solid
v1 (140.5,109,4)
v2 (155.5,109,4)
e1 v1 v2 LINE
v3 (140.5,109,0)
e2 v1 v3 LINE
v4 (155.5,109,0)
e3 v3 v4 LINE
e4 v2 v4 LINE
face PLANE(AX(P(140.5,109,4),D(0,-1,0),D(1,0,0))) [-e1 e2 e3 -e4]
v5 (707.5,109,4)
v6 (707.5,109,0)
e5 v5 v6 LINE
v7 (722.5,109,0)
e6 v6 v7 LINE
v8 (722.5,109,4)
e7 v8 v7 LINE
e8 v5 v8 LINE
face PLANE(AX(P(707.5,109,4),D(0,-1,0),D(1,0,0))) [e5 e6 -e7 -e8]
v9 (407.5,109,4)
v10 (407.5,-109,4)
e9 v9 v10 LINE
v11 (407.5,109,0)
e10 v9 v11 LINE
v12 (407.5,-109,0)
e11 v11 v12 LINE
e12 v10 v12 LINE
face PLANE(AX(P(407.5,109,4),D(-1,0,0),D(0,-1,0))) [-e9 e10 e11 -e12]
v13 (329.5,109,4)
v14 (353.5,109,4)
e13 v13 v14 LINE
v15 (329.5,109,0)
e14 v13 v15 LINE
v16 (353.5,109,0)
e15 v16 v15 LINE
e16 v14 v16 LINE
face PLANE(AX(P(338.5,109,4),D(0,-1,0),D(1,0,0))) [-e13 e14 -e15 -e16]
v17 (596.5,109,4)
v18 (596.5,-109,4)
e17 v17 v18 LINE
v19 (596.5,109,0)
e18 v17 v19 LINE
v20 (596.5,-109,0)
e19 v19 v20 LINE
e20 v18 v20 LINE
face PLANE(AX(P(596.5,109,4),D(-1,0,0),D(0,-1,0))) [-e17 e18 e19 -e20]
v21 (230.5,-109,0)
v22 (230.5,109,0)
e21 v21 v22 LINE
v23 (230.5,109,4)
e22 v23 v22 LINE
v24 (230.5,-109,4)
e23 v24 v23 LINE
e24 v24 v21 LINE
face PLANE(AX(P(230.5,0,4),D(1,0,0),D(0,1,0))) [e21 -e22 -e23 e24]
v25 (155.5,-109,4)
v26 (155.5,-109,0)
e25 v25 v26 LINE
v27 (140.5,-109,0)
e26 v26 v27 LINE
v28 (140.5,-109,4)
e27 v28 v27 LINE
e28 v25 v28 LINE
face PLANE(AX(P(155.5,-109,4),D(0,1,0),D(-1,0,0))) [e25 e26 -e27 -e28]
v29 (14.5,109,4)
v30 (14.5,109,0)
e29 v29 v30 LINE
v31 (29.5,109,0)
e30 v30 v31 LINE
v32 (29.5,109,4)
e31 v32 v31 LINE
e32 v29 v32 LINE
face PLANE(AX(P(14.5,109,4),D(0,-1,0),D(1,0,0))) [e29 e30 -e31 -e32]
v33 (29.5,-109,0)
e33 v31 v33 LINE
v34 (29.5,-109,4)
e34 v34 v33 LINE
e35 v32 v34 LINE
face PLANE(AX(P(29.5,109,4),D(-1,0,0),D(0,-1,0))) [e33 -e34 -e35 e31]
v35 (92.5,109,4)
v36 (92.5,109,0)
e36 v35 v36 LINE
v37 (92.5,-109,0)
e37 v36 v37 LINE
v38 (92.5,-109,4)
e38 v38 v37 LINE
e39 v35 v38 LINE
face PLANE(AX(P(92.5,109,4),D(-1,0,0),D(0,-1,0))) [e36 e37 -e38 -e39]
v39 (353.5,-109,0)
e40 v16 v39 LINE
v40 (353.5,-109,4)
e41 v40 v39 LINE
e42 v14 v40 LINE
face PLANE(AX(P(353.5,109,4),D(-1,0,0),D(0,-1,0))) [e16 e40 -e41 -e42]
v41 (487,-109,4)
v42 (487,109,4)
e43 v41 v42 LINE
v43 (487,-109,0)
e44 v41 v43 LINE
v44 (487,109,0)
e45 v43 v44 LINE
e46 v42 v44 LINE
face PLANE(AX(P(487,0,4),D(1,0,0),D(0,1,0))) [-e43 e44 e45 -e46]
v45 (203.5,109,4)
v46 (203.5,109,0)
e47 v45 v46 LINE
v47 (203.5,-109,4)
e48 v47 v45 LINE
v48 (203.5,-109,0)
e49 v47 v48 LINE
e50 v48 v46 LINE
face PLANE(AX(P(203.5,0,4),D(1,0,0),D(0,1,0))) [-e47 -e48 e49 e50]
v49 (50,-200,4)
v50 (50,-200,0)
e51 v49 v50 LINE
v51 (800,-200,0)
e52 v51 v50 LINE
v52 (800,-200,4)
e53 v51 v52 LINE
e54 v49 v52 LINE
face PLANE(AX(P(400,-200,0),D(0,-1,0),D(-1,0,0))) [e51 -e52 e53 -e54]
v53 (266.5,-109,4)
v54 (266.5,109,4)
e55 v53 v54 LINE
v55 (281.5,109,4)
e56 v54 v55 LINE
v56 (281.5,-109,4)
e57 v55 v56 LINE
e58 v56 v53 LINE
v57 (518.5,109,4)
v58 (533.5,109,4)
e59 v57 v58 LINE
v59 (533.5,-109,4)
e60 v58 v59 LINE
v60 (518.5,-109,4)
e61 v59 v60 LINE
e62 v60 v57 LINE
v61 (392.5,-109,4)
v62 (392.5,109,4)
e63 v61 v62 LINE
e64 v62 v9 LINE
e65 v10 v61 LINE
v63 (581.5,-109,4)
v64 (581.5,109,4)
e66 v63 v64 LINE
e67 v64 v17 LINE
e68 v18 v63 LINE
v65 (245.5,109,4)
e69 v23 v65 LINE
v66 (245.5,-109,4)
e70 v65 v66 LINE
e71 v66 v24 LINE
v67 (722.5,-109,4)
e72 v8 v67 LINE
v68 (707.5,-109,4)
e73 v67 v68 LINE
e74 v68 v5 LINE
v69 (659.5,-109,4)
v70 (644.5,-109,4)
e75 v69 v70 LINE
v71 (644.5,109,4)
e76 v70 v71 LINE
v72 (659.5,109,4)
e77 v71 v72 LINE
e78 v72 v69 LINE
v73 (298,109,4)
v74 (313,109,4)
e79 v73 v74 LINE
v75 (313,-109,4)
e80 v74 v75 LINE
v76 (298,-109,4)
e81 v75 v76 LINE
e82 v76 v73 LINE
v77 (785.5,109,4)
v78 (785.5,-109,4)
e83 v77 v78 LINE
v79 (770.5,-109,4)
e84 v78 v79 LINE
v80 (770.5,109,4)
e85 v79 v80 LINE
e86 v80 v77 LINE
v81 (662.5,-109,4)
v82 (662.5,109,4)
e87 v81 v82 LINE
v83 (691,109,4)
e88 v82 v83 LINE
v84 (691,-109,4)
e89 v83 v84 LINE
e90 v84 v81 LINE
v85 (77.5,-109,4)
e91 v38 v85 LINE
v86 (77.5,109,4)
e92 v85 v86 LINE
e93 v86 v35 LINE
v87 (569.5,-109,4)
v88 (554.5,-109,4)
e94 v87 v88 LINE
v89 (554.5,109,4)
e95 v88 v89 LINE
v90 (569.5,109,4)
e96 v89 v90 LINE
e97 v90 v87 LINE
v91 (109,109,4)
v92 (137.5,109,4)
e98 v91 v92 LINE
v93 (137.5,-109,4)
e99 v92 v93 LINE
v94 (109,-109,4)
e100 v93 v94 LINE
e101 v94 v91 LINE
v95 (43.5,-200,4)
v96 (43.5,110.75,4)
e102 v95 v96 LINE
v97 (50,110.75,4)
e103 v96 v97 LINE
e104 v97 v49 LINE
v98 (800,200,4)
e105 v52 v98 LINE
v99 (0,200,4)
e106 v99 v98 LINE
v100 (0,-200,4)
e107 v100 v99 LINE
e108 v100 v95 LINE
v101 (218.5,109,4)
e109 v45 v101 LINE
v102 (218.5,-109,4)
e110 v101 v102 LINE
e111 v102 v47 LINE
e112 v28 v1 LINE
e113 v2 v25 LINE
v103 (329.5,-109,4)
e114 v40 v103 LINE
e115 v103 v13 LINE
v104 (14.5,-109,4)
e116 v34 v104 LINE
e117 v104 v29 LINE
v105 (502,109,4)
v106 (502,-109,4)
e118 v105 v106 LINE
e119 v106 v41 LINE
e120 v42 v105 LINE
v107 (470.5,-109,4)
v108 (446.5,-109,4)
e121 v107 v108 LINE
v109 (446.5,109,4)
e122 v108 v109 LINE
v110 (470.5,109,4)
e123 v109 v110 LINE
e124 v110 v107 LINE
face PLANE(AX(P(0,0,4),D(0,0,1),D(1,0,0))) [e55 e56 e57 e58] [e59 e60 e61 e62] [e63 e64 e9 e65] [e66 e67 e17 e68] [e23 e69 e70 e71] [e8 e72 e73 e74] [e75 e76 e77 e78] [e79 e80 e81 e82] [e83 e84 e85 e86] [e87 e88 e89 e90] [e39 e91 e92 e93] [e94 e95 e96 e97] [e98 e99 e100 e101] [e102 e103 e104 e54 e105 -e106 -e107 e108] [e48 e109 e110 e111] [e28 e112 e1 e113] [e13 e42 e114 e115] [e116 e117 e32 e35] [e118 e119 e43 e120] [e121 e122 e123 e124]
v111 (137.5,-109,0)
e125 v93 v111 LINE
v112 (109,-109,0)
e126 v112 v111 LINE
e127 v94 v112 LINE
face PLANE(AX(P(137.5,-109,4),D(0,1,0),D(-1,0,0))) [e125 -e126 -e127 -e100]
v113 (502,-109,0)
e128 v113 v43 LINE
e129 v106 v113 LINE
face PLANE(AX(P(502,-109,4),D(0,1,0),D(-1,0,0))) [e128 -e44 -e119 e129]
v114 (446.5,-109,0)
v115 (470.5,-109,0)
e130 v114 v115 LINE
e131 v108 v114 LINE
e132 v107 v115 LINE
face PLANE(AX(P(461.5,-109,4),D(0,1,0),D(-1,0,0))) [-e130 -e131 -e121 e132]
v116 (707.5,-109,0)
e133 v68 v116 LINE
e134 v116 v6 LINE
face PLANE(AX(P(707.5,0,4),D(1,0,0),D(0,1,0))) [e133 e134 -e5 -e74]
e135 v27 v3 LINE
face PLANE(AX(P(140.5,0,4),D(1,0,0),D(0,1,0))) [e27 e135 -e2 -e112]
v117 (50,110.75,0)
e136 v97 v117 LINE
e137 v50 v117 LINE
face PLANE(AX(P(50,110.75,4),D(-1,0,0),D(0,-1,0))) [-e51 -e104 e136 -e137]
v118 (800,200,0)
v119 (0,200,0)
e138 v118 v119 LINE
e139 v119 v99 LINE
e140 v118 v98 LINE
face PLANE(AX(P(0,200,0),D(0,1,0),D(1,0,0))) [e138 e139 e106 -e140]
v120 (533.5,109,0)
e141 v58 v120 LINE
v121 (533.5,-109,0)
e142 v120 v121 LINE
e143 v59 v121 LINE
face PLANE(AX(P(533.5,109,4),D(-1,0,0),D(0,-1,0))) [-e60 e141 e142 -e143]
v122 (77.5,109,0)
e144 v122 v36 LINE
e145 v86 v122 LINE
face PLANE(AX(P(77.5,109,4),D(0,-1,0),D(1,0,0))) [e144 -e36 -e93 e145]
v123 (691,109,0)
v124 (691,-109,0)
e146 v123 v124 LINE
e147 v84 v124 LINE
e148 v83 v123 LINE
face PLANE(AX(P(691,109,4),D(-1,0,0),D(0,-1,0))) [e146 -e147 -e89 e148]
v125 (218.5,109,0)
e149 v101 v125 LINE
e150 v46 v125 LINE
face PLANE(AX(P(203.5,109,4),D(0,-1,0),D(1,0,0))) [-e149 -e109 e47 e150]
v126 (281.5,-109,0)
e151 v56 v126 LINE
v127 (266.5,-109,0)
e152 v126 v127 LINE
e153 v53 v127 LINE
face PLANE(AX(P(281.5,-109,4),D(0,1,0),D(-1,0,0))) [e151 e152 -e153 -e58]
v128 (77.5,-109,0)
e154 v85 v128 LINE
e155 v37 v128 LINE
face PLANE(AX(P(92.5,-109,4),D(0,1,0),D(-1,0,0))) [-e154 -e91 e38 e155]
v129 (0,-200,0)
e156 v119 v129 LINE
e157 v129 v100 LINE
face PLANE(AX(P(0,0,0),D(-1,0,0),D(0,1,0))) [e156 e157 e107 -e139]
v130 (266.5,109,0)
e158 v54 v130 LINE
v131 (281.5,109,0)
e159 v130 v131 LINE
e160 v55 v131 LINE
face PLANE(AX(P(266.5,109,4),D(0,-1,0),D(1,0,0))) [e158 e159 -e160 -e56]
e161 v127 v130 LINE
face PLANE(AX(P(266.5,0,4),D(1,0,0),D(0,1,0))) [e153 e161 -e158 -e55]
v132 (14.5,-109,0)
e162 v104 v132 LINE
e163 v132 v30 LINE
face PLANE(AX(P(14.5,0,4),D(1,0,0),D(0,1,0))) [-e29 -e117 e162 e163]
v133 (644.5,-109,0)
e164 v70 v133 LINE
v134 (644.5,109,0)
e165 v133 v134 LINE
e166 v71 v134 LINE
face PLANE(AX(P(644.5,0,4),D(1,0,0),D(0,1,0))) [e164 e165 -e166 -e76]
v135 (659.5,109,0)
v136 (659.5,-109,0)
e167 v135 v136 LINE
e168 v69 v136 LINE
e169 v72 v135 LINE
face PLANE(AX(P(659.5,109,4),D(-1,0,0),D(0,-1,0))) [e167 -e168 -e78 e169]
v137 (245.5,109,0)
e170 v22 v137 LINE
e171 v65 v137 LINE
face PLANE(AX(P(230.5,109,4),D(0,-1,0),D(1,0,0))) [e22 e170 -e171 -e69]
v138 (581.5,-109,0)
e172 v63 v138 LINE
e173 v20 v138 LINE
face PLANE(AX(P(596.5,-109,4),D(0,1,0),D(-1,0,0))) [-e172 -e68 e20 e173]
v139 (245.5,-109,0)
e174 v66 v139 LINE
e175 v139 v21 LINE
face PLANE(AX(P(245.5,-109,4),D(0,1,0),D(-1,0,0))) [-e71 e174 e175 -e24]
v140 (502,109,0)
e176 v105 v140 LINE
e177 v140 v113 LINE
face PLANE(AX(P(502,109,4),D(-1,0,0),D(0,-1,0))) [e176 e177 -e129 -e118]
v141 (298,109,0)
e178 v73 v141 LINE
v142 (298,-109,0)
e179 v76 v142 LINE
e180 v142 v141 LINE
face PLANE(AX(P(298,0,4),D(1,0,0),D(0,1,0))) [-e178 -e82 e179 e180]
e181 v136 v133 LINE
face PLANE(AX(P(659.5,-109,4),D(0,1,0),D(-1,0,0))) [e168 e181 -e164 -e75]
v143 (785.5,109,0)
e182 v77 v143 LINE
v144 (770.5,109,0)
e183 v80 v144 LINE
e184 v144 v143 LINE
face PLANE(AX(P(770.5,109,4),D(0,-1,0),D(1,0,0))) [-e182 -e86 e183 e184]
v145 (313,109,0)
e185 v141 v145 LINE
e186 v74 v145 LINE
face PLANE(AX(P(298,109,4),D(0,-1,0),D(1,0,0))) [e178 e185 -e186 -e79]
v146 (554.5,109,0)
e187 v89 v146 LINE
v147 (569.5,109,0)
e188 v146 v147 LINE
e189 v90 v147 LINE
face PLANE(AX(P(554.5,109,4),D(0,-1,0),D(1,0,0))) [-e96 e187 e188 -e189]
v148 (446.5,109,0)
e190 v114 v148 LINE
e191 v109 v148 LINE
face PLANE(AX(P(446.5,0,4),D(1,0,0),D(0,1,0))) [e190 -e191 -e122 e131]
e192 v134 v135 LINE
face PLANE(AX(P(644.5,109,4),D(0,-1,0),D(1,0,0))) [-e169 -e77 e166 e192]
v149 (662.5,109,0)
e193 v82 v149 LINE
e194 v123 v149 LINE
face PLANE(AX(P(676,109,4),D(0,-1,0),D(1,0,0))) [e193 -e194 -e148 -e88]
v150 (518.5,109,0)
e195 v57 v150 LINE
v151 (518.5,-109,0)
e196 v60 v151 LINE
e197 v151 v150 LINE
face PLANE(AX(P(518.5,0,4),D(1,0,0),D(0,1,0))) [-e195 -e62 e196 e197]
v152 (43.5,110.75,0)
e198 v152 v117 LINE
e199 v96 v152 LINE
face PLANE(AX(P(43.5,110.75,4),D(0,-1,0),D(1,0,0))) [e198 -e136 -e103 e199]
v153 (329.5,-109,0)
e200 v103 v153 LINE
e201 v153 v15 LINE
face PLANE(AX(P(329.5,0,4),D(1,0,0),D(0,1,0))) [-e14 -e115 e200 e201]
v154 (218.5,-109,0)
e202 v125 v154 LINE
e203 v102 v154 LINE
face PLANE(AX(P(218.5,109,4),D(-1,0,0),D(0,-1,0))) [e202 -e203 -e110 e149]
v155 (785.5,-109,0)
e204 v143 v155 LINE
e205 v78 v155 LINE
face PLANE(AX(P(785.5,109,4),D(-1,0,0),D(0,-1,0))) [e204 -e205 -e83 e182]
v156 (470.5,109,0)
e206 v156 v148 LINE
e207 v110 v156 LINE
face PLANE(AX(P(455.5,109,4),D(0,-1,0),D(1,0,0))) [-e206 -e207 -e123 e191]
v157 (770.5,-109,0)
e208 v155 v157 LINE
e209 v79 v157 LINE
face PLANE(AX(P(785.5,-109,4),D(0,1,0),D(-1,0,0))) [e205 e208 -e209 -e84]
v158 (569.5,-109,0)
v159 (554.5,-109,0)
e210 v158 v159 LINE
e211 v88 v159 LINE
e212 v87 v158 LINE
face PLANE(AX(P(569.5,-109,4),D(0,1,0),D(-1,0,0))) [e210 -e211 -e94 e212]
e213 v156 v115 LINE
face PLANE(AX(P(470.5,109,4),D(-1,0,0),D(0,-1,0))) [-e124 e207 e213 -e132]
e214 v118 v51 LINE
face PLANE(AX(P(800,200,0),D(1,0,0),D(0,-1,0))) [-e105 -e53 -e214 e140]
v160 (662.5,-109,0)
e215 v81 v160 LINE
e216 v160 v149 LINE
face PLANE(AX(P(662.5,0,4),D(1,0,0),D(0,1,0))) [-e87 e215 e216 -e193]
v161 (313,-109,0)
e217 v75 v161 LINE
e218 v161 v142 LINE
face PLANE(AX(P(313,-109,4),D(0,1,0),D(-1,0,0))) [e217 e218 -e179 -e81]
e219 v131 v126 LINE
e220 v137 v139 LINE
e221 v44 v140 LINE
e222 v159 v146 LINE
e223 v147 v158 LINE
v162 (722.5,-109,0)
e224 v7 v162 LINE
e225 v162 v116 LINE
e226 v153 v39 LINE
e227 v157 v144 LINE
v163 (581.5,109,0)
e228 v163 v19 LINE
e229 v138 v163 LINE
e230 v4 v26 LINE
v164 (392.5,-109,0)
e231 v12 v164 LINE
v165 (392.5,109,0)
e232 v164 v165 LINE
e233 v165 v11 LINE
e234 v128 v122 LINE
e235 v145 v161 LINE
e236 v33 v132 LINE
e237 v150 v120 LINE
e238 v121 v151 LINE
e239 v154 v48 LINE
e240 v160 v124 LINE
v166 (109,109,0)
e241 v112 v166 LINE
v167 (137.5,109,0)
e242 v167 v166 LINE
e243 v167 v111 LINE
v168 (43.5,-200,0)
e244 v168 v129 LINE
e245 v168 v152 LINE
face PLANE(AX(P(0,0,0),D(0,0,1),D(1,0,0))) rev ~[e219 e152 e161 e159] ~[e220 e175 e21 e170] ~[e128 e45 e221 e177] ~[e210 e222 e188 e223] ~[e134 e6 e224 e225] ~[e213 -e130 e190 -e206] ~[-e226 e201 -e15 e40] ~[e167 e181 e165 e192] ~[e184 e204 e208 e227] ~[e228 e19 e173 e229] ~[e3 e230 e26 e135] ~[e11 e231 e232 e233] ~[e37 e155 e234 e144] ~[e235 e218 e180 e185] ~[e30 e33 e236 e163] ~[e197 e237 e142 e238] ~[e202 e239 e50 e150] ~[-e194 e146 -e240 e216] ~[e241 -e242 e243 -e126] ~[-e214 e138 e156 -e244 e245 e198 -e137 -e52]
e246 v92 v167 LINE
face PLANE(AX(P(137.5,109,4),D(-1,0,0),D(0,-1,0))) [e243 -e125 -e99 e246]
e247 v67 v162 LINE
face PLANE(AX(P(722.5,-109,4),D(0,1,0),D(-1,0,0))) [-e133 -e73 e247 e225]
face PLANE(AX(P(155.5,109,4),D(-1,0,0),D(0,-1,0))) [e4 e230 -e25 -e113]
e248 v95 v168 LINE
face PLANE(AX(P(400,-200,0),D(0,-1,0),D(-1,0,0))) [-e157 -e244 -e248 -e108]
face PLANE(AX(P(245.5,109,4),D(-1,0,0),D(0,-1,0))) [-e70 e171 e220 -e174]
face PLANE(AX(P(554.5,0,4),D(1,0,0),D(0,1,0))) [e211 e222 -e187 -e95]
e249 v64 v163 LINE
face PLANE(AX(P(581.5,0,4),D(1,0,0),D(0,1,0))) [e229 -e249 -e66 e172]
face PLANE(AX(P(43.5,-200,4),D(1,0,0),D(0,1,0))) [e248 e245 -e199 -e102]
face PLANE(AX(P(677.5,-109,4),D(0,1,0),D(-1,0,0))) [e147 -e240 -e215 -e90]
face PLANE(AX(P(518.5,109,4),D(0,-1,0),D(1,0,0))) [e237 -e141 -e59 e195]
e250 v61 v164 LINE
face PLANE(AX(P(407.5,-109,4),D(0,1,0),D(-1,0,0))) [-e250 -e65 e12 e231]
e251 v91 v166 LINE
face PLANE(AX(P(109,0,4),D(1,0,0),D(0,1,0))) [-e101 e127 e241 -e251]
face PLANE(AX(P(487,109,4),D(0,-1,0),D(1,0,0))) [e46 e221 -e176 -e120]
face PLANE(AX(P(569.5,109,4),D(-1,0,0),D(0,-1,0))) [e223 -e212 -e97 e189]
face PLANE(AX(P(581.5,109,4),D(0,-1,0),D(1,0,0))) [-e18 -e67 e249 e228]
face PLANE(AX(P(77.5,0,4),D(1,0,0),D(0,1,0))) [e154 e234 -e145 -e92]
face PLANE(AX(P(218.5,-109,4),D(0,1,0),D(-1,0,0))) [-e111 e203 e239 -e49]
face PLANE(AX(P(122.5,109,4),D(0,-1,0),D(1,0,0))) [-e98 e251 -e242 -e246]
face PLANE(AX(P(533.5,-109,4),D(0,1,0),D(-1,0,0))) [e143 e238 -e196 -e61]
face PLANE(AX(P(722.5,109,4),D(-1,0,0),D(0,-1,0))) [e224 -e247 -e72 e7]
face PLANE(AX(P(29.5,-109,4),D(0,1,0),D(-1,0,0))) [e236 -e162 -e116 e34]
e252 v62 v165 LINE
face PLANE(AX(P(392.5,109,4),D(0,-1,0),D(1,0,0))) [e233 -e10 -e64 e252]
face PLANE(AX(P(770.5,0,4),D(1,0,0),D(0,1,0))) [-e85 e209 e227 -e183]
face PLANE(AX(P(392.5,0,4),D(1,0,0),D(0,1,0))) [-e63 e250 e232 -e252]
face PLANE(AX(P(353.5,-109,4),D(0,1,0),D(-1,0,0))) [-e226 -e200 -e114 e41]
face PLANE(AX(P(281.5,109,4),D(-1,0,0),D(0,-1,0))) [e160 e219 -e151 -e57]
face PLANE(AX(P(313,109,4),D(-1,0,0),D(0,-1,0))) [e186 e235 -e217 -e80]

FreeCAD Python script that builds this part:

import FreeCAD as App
import Part
import Sketcher
from FreeCAD import Vector
Q = App.Units.Quantity

doc = App.newDocument("Part")
body = doc.addObject("PartDesign::Body", "Body")

# Sketch on XY plane
sketch1 = doc.addObject("Sketcher::SketchObject", "Sketch")
body.addObject(sketch1)
sketch1.AttachmentSupport = (doc.XY_Plane, [""])
sketch1.MapMode = "FlatFace"
sketch1.addGeometry(Part.LineSegment(Vector(0, 200, 0), Vector(0, -200, 0)), False)
sketch1.addGeometry(Part.LineSegment(Vector(0, -200, 0), Vector(800, -200, 0)), False)
sketch1.addGeometry(Part.LineSegment(Vector(800, -200, 0), Vector(800, 200, 0)), False)
sketch1.addGeometry(Part.LineSegment(Vector(800, 200, 0), Vector(0, 200, 0)), False)
sketch1.addConstraint(Sketcher.Constraint("Coincident", 0, 2, 1, 1))
sketch1.addConstraint(Sketcher.Constraint("Coincident", 1, 2, 2, 1))
sketch1.addConstraint(Sketcher.Constraint("Coincident", 2, 2, 3, 1))
sketch1.addConstraint(Sketcher.Constraint("Coincident", 3, 2, 0, 1))
sketch1.addConstraint(Sketcher.Constraint("Vertical", 0))
sketch1.addConstraint(Sketcher.Constraint("Horizontal", 1))
sketch1.addConstraint(Sketcher.Constraint("Vertical", 2))
sketch1.addConstraint(Sketcher.Constraint("Horizontal", 3))
sketch1.addConstraint(Sketcher.Constraint("Symmetric", 0, 2, 3, 2, -1, 1))
sketch1.addConstraint(Sketcher.Constraint("DistanceX", 1, 1, 1, 2, Q("800 mm")))
sketch1.addConstraint(Sketcher.Constraint("DistanceY", 0, 2, 0, 1, Q("400 mm")))
pad1 = doc.addObject("PartDesign::Pad", "Pad")
body.addObject(pad1)
pad1.Profile = sketch1
pad1.Length = 4

# Sketch on XY plane
sketch2 = doc.addObject("Sketcher::SketchObject", "Sketch001")
body.addObject(sketch2)
sketch2.AttachmentSupport = (doc.XY_Plane, [""])
sketch2.MapMode = "FlatFace"
sketch2.AttachmentOffset = App.Placement(Vector(0, 0, 4), App.Rotation())
sketch2.addGeometry(Part.LineSegment(Vector(29.5, 109, 0), Vector(14.5, 109, 0)), False)
sketch2.addGeometry(Part.LineSegment(Vector(14.5, 109, 0), Vector(14.5, -109, 0)), False)
sketch2.addGeometry(Part.LineSegment(Vector(14.5, -109, 0), Vector(29.5, -109, 0)), False)
sketch2.addGeometry(Part.LineSegment(Vector(29.5, -109, 0), Vector(29.5, 109, 0)), False)
sketch2.addConstraint(Sketcher.Constraint("Coincident", 0, 2, 1, 1))
sketch2.addConstraint(Sketcher.Constraint("Coincident", 1, 2, 2, 1))
sketch2.addConstraint(Sketcher.Constraint("Coincident", 2, 2, 3, 1))
sketch2.addConstraint(Sketcher.Constraint("Coincident", 3, 2, 0, 1))
sketch2.addConstraint(Sketcher.Constraint("Horizontal", 0))
sketch2.addConstraint(Sketcher.Constraint("Vertical", 1))
sketch2.addConstraint(Sketcher.Constraint("Horizontal", 2))
sketch2.addConstraint(Sketcher.Constraint("Vertical", 3))
sketch2.addConstraint(Sketcher.Constraint("DistanceX", 0, 2, 0, 1, Q("15 mm")))
sketch2.addConstraint(Sketcher.Constraint("DistanceY", 1, 2, 1, 1, Q("218 mm")))
sketch2.addConstraint(Sketcher.Constraint("DistanceX", -1, 1, 0, 2, Q("14.5 mm")))
sketch2.addConstraint(Sketcher.Constraint("DistanceY", -1, 1, 0, 2, Q("109 mm")))
pocket1 = doc.addObject("PartDesign::Pocket", "Pocket")
body.addObject(pocket1)
pocket1.Profile = sketch2
pocket1.Type = "ThroughAll"
doc.recompute()

linearpattern = doc.addObject("PartDesign::LinearPattern", "LinearPattern")
body.addObject(linearpattern)
linearpattern.Originals = [pocket1]
linearpattern.Direction = (doc.X_Axis, [""])
linearpattern.Mode = "offset"
linearpattern.Offset = 126
linearpattern.Occurrences = 7
body.Tip = linearpattern
doc.recompute()

linearpattern2 = doc.addObject("PartDesign::LinearPattern", "LinearPattern001")
body.addObject(linearpattern2)
linearpattern2.Originals = [pocket1]
linearpattern2.Direction = (doc.X_Axis, [""])
linearpattern2.Mode = "offset"
linearpattern2.Offset = 108
linearpattern2.Occurrences = 8
body.Tip = linearpattern2
doc.recompute()

linearpattern3 = doc.addObject("PartDesign::LinearPattern", "LinearPattern002")
body.addObject(linearpattern3)
linearpattern3.Originals = [pocket1]
linearpattern3.Direction = (doc.X_Axis, [""])
linearpattern3.Mode = "offset"
linearpattern3.Offset = 94.5
linearpattern3.Occurrences = 9
body.Tip = linearpattern3
doc.recompute()

linearpattern4 = doc.addObject("PartDesign::LinearPattern", "LinearPattern003")
body.addObject(linearpattern4)
linearpattern4.Originals = [pocket1]
linearpattern4.Direction = (doc.X_Axis, [""])
linearpattern4.Mode = "offset"
linearpattern4.Offset = 63
linearpattern4.Occurrences = 13
body.Tip = linearpattern4

# Sketch on XY plane
sketch3 = doc.addObject("Sketcher::SketchObject", "Sketch002")
body.addObject(sketch3)
sketch3.AttachmentSupport = (doc.XY_Plane, [""])
sketch3.MapMode = "FlatFace"
sketch3.AttachmentOffset = App.Placement(Vector(0, 0, 4), App.Rotation())
sketch3.addGeometry(Part.Circle(Vector(47, 7.75, 0), Vector(0, 0, 1), 3), False)
sketch3.addGeometry(Part.Circle(Vector(47, -72, 0), Vector(0, 0, 1), 3), False)
sketch3.addConstraint(Sketcher.Constraint("Equal", 0, 1))
sketch3.addConstraint(Sketcher.Constraint("Vertical", 0, 3, 1, 3))
sketch3.addConstraint(Sketcher.Constraint("Diameter", 0, Q("6 mm")))
sketch3.addConstraint(Sketcher.Constraint("DistanceX", -1, 1, 0, 3, Q("47 mm")))
sketch3.addConstraint(Sketcher.Constraint("DistanceY", 1, 3, -1, 1, Q("72 mm")))
sketch3.addConstraint(Sketcher.Constraint("DistanceY", -1, 1, 0, 3, Q("7.75 mm")))
pocket2 = doc.addObject("PartDesign::Pocket", "Pocket001")
body.addObject(pocket2)
pocket2.Profile = sketch3
pocket2.Type = "ThroughAll"

# Sketch on XY plane
sketch4 = doc.addObject("Sketcher::SketchObject", "Sketch003")
body.addObject(sketch4)
sketch4.AttachmentSupport = (doc.XY_Plane, [""])
sketch4.MapMode = "FlatFace"
sketch4.AttachmentOffset = App.Placement(Vector(0, 0, 4), App.Rotation())
sketch4.addGeometry(Part.LineSegment(Vector(43.5, 110.75, 0), Vector(43.5, -200, 0)), False)
sketch4.addGeometry(Part.LineSegment(Vector(43.5, -200, 0), Vector(50, -200, 0)), False)
sketch4.addGeometry(Part.LineSegment(Vector(50, -200, 0), Vector(50, 110.75, 0)), False)
sketch4.addGeometry(Part.LineSegment(Vector(50, 110.75, 0), Vector(43.5, 110.75, 0)), False)
sketch4.addConstraint(Sketcher.Constraint("Coincident", 0, 2, 1, 1))
sketch4.addConstraint(Sketcher.Constraint("Coincident", 1, 2, 2, 1))
sketch4.addConstraint(Sketcher.Constraint("Coincident", 2, 2, 3, 1))
sketch4.addConstraint(Sketcher.Constraint("Coincident", 3, 2, 0, 1))
sketch4.addConstraint(Sketcher.Constraint("Vertical", 0))
sketch4.addConstraint(Sketcher.Constraint("Horizontal", 1))
sketch4.addConstraint(Sketcher.Constraint("Vertical", 2))
sketch4.addConstraint(Sketcher.Constraint("Horizontal", 3))
sketch4.addConstraint(Sketcher.Constraint("DistanceX", 1, 1, 1, 2, Q("6.5 mm")))
sketch4.addConstraint(Sketcher.Constraint("DistanceY", 0, 2, 0, 1, Q("310.75 mm")))
sketch4.addConstraint(Sketcher.Constraint("DistanceX", -1, 1, 0, 2, Q("43.5 mm")))
sketch4.addConstraint(Sketcher.Constraint("DistanceY", 0, 2, -1, 1, Q("200 mm")))
pocket3 = doc.addObject("PartDesign::Pocket", "Pocket002")
body.addObject(pocket3)
pocket3.Profile = sketch4
pocket3.Type = "ThroughAll"

doc.recompute()
